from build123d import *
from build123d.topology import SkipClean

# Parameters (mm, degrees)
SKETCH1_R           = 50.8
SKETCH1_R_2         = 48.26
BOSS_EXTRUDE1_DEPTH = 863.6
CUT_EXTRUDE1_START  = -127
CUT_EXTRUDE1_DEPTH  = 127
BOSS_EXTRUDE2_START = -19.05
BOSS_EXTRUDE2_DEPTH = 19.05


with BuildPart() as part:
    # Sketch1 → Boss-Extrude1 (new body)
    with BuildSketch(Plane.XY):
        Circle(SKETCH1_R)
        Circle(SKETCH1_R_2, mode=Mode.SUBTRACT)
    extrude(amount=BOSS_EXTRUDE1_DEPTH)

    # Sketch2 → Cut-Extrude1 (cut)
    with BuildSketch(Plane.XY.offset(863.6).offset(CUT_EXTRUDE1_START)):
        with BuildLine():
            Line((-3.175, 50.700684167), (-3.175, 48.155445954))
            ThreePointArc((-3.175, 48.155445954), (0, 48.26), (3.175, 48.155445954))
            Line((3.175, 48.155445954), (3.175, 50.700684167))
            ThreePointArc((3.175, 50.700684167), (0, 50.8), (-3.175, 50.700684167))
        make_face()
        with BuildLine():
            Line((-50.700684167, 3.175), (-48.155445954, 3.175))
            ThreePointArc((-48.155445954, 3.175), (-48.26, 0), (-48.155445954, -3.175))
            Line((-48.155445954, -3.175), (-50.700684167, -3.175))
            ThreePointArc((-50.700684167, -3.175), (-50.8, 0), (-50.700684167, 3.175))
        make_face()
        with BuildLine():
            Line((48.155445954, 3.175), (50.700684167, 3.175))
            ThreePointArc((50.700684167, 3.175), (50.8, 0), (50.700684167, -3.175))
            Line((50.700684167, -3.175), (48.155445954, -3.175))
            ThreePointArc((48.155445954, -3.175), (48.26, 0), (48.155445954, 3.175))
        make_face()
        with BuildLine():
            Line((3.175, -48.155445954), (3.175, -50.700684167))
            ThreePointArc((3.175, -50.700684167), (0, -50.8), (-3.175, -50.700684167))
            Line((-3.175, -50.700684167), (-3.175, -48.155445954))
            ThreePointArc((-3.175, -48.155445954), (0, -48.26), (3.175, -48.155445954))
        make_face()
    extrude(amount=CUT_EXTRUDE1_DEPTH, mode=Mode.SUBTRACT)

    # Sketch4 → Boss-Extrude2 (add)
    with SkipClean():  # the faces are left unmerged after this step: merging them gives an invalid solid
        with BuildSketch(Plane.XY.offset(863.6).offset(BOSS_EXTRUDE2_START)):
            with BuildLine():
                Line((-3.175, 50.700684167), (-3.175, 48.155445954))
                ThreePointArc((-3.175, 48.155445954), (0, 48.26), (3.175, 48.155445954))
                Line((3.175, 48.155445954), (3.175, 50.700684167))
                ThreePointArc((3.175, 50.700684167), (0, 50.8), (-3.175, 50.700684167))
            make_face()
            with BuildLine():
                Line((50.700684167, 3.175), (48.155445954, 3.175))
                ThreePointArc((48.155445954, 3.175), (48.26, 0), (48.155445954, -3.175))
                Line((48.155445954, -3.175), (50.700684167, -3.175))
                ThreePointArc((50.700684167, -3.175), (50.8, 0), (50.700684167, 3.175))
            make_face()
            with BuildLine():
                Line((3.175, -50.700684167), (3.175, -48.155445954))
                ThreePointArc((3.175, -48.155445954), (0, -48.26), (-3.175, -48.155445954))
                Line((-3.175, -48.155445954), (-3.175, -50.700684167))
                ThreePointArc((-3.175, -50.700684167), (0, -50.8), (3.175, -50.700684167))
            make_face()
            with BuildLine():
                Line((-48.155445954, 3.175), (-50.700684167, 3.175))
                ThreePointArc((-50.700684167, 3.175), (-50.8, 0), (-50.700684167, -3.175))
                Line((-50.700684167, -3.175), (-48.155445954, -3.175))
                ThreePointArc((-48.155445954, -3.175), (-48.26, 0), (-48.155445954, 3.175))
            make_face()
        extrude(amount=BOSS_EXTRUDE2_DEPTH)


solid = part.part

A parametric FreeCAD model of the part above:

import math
import FreeCAD as App
import Part
import Sketcher

V = App.Vector
Q = App.Units.Quantity

doc = App.newDocument("Part")
body = doc.addObject("PartDesign::Body", "Body")

sketch1 = body.newObject("Sketcher::SketchObject", "Sketch")
sketch1.AttachmentSupport = (doc.getObject("XY_Plane"), [""])
sketch1.MapMode = "FlatFace"
sketch1.addGeometry([
    Part.Circle(V(0, 0, 0), V(0, 0, 1), 51),
    Part.Circle(V(0, 0, 0), V(0, 0, 1), 48),
], False)
sketch1.addConstraint([
    Sketcher.Constraint("Coincident", 0, 3, -1, 1),
    Sketcher.Constraint("Coincident", 1, 3, -1, 1),
    Sketcher.Constraint("Diameter", 0, Q("4 in")),
    Sketcher.Constraint("Diameter", 1, Q("3.8 in")),
])
pad1 = body.newObject("PartDesign::Pad", "Pad")
pad1.Profile = sketch1
pad1.Length = Q("34 in")

sketch2 = body.newObject("Sketcher::SketchObject", "Sketch001")
sketch2.AttachmentSupport = (doc.getObject("XY_Plane"), [""])
sketch2.MapMode = "FlatFace"
sketch2.AttachmentOffset = App.Placement(V(0, 0, 29 * 25.4), App.Rotation())
sketch2.addGeometry([
    Part.LineSegment(V(-3.2, 50.7, 0), V(-3.2, 48.2, 0)),
    Part.ArcOfCircle(Part.Circle(V(0, 0, 0), V(0, 0, 1), 48.3), math.radians(86.23), math.radians(93.77)),
    Part.LineSegment(V(3.2, 48.2, 0), V(3.2, 50.7, 0)),
    Part.ArcOfCircle(Part.Circle(V(0, 0, 0), V(0, 0, 1), 50.8), math.radians(86.42), math.radians(93.58)),
    Part.LineSegment(V(-48.2, 3.2, 0), V(-50.7, 3.2, 0)),
    Part.ArcOfCircle(Part.Circle(V(0, 0, 0), V(0, 0, 1), 50.8), math.radians(176.42), math.radians(183.58)),
    Part.LineSegment(V(-50.7, -3.2, 0), V(-48.2, -3.2, 0)),
    Part.ArcOfCircle(Part.Circle(V(0, 0, 0), V(0, 0, 1), 48.3), math.radians(176.23), math.radians(183.77)),
    Part.LineSegment(V(50.7, 3.2, 0), V(48.2, 3.2, 0)),
    Part.ArcOfCircle(Part.Circle(V(0, 0, 0), V(0, 0, 1), 48.3), math.radians(-3.77), math.radians(3.77)),
    Part.LineSegment(V(48.2, -3.2, 0), V(50.7, -3.2, 0)),
    Part.ArcOfCircle(Part.Circle(V(0, 0, 0), V(0, 0, 1), 50.8), math.radians(-3.58), math.radians(3.58)),
    Part.LineSegment(V(3.2, -50.7, 0), V(3.2, -48.2, 0)),
    Part.ArcOfCircle(Part.Circle(V(0, 0, 0), V(0, 0, 1), 48.3), math.radians(-93.77), math.radians(-86.23)),
    Part.LineSegment(V(-3.2, -48.2, 0), V(-3.2, -50.7, 0)),
    Part.ArcOfCircle(Part.Circle(V(0, 0, 0), V(0, 0, 1), 50.8), math.radians(-93.58), math.radians(-86.42)),
], False)
sketch2.addConstraint([
    Sketcher.Constraint("Coincident", 0, 2, 1, 2),
    Sketcher.Constraint("Coincident", 1, 1, 2, 1),
    Sketcher.Constraint("Coincident", 2, 2, 3, 1),
    Sketcher.Constraint("Coincident", 3, 2, 0, 1),
    Sketcher.Constraint("Coincident", 4, 2, 5, 1),
    Sketcher.Constraint("Coincident", 5, 2, 6, 1),
    Sketcher.Constraint("Coincident", 6, 2, 7, 2),
    Sketcher.Constraint("Coincident", 7, 1, 4, 1),
    Sketcher.Constraint("Coincident", 8, 2, 9, 2),
    Sketcher.Constraint("Coincident", 9, 1, 10, 1),
    Sketcher.Constraint("Coincident", 10, 2, 11, 1),
    Sketcher.Constraint("Coincident", 11, 2, 8, 1),
    Sketcher.Constraint("Coincident", 12, 2, 13, 2),
    Sketcher.Constraint("Coincident", 13, 1, 14, 1),
    Sketcher.Constraint("Coincident", 14, 2, 15, 1),
    Sketcher.Constraint("Coincident", 15, 2, 12, 1),
    Sketcher.Constraint("Vertical", 0),
    Sketcher.Constraint("Vertical", 2),
    Sketcher.Constraint("Horizontal", 4),
    Sketcher.Constraint("Horizontal", 6),
    Sketcher.Constraint("Horizontal", 8),
    Sketcher.Constraint("Horizontal", 10),
    Sketcher.Constraint("Vertical", 12),
    Sketcher.Constraint("Vertical", 14),
    Sketcher.Constraint("Coincident", 1, 3, -1, 1),
    Sketcher.Constraint("Coincident", 3, 3, -1, 1),
    Sketcher.Constraint("Coincident", 5, 3, -1, 1),
    Sketcher.Constraint("Coincident", 7, 3, -1, 1),
    Sketcher.Constraint("Coincident", 9, 3, -1, 1),
    Sketcher.Constraint("Coincident", 11, 3, -1, 1),
    Sketcher.Constraint("Coincident", 13, 3, -1, 1),
    Sketcher.Constraint("Coincident", 15, 3, -1, 1),
    Sketcher.Constraint("Equal", 3, 5),
    Sketcher.Constraint("Equal", 1, 7),
    Sketcher.Constraint("Equal", 7, 9),
    Sketcher.Constraint("Equal", 5, 11),
    Sketcher.Constraint("Equal", 9, 13),
    Sketcher.Constraint("Equal", 11, 15),
    Sketcher.Constraint("Horizontal", 0, 2, 1, 1),
    Sketcher.Constraint("Horizontal", 7, 1, 8, 2),
    Sketcher.Constraint("Horizontal", 6, 2, 9, 1),
    Sketcher.Constraint("Horizontal", 12, 2, 13, 1),
    Sketcher.Constraint("Vertical", 4, 2, 5, 2),
    Sketcher.Constraint("Vertical", 2, 2, 12, 2),
    Sketcher.Constraint("Radius", 3, Q("2 in")),
    Sketcher.Constraint("Radius", 1, Q("1.9 in")),
    Sketcher.Constraint("DistanceX", 0, 2, 1, 1, Q("0.25 in")),
    Sketcher.Constraint("DistanceY", 5, 2, 4, 2, Q("0.25 in")),
])
pocket1 = body.newObject("PartDesign::Pocket", "Pocket")
pocket1.Profile = sketch2
pocket1.Length = Q("5 in")
pocket1.Reversed = True

sketch3 = body.newObject("Sketcher::SketchObject", "Sketch002")
sketch3.AttachmentSupport = (doc.getObject("XY_Plane"), [""])
sketch3.MapMode = "FlatFace"
sketch3.AttachmentOffset = App.Placement(V(0, 0, 33.25 * 25.4), App.Rotation())
sketch3.addGeometry([
    Part.LineSegment(V(-3.2, 50.7, 0), V(-3.2, 48.2, 0)),
    Part.ArcOfCircle(Part.Circle(V(0, 0, 0), V(0, 0, 1), 48.3), math.radians(86.23), math.radians(93.77)),
    Part.LineSegment(V(3.2, 48.2, 0), V(3.2, 50.7, 0)),
    Part.ArcOfCircle(Part.Circle(V(0, 0, 0), V(0, 0, 1), 50.8), math.radians(86.42), math.radians(93.58)),
    Part.LineSegment(V(50.7, 3.2, 0), V(48.2, 3.2, 0)),
    Part.ArcOfCircle(Part.Circle(V(0, 0, 0), V(0, 0, 1), 48.3), math.radians(-3.77), math.radians(3.77)),
    Part.LineSegment(V(48.2, -3.2, 0), V(50.7, -3.2, 0)),
    Part.ArcOfCircle(Part.Circle(V(0, 0, 0), V(0, 0, 1), 50.8), math.radians(-3.58), math.radians(3.58)),
    Part.LineSegment(V(3.2, -50.7, 0), V(3.2, -48.2, 0)),
    Part.ArcOfCircle(Part.Circle(V(0, 0, 0), V(0, 0, 1), 48.3), math.radians(-93.77), math.radians(-86.23)),
    Part.LineSegment(V(-3.2, -48.2, 0), V(-3.2, -50.7, 0)),
    Part.ArcOfCircle(Part.Circle(V(0, 0, 0), V(0, 0, 1), 50.8), math.radians(-93.58), math.radians(-86.42)),
    Part.LineSegment(V(-48.2, 3.2, 0), V(-50.7, 3.2, 0)),
    Part.ArcOfCircle(Part.Circle(V(0, 0, 0), V(0, 0, 1), 50.8), math.radians(176.42), math.radians(183.58)),
    Part.LineSegment(V(-50.7, -3.2, 0), V(-48.2, -3.2, 0)),
    Part.ArcOfCircle(Part.Circle(V(0, 0, 0), V(0, 0, 1), 48.3), math.radians(176.23), math.radians(183.77)),
], False)
sketch3.addConstraint([
    Sketcher.Constraint("Coincident", 0, 2, 1, 2),
    Sketcher.Constraint("Coincident", 1, 1, 2, 1),
    Sketcher.Constraint("Coincident", 2, 2, 3, 1),
    Sketcher.Constraint("Coincident", 3, 2, 0, 1),
    Sketcher.Constraint("Coincident", 4, 2, 5, 2),
    Sketcher.Constraint("Coincident", 5, 1, 6, 1),
    Sketcher.Constraint("Coincident", 6, 2, 7, 1),
    Sketcher.Constraint("Coincident", 7, 2, 4, 1),
    Sketcher.Constraint("Coincident", 8, 2, 9, 2),
    Sketcher.Constraint("Coincident", 9, 1, 10, 1),
    Sketcher.Constraint("Coincident", 10, 2, 11, 1),
    Sketcher.Constraint("Coincident", 11, 2, 8, 1),
    Sketcher.Constraint("Coincident", 12, 2, 13, 1),
    Sketcher.Constraint("Coincident", 13, 2, 14, 1),
    Sketcher.Constraint("Coincident", 14, 2, 15, 2),
    Sketcher.Constraint("Coincident", 15, 1, 12, 1),
    Sketcher.Constraint("Vertical", 0),
    Sketcher.Constraint("Vertical", 2),
    Sketcher.Constraint("Horizontal", 4),
    Sketcher.Constraint("Horizontal", 6),
    Sketcher.Constraint("Vertical", 8),
    Sketcher.Constraint("Vertical", 10),
    Sketcher.Constraint("Horizontal", 12),
    Sketcher.Constraint("Horizontal", 14),
    Sketcher.Constraint("Coincident", 1, 3, -1, 1),
    Sketcher.Constraint("Coincident", 3, 3, -1, 1),
    Sketcher.Constraint("Coincident", 5, 3, -1, 1),
    Sketcher.Constraint("Coincident", 7, 3, -1, 1),
    Sketcher.Constraint("Coincident", 9, 3, -1, 1),
    Sketcher.Constraint("Coincident", 11, 3, -1, 1),
    Sketcher.Constraint("Coincident", 13, 3, -1, 1),
    Sketcher.Constraint("Coincident", 15, 3, -1, 1),
    Sketcher.Constraint("Equal", 1, 5),
    Sketcher.Constraint("Equal", 3, 7),
    Sketcher.Constraint("Equal", 5, 9),
    Sketcher.Constraint("Equal", 7, 11),
    Sketcher.Constraint("Equal", 11, 13),
    Sketcher.Constraint("Equal", 9, 15),
    Sketcher.Constraint("Horizontal", 0, 2, 1, 1),
    Sketcher.Constraint("Horizontal", 8, 2, 9, 1),
    Sketcher.Constraint("Horizontal", 7, 2, 12, 2),
    Sketcher.Constraint("Horizontal", 6, 2, 13, 2),
    Sketcher.Constraint("Vertical", 4, 2, 5, 1),
    Sketcher.Constraint("Vertical", 2, 2, 8, 2),
    Sketcher.Constraint("Radius", 3, Q("2 in")),
    Sketcher.Constraint("Radius", 1, Q("1.9 in")),
    Sketcher.Constraint("DistanceX", 0, 2, 1, 1, Q("0.25 in")),
    Sketcher.Constraint("DistanceY", 5, 1, 4, 2, Q("0.25 in")),
])
pad2 = body.newObject("PartDesign::Pad", "Pad001")
pad2.Profile = sketch3
pad2.Length = Q("0.75 in")

doc.recompute()
